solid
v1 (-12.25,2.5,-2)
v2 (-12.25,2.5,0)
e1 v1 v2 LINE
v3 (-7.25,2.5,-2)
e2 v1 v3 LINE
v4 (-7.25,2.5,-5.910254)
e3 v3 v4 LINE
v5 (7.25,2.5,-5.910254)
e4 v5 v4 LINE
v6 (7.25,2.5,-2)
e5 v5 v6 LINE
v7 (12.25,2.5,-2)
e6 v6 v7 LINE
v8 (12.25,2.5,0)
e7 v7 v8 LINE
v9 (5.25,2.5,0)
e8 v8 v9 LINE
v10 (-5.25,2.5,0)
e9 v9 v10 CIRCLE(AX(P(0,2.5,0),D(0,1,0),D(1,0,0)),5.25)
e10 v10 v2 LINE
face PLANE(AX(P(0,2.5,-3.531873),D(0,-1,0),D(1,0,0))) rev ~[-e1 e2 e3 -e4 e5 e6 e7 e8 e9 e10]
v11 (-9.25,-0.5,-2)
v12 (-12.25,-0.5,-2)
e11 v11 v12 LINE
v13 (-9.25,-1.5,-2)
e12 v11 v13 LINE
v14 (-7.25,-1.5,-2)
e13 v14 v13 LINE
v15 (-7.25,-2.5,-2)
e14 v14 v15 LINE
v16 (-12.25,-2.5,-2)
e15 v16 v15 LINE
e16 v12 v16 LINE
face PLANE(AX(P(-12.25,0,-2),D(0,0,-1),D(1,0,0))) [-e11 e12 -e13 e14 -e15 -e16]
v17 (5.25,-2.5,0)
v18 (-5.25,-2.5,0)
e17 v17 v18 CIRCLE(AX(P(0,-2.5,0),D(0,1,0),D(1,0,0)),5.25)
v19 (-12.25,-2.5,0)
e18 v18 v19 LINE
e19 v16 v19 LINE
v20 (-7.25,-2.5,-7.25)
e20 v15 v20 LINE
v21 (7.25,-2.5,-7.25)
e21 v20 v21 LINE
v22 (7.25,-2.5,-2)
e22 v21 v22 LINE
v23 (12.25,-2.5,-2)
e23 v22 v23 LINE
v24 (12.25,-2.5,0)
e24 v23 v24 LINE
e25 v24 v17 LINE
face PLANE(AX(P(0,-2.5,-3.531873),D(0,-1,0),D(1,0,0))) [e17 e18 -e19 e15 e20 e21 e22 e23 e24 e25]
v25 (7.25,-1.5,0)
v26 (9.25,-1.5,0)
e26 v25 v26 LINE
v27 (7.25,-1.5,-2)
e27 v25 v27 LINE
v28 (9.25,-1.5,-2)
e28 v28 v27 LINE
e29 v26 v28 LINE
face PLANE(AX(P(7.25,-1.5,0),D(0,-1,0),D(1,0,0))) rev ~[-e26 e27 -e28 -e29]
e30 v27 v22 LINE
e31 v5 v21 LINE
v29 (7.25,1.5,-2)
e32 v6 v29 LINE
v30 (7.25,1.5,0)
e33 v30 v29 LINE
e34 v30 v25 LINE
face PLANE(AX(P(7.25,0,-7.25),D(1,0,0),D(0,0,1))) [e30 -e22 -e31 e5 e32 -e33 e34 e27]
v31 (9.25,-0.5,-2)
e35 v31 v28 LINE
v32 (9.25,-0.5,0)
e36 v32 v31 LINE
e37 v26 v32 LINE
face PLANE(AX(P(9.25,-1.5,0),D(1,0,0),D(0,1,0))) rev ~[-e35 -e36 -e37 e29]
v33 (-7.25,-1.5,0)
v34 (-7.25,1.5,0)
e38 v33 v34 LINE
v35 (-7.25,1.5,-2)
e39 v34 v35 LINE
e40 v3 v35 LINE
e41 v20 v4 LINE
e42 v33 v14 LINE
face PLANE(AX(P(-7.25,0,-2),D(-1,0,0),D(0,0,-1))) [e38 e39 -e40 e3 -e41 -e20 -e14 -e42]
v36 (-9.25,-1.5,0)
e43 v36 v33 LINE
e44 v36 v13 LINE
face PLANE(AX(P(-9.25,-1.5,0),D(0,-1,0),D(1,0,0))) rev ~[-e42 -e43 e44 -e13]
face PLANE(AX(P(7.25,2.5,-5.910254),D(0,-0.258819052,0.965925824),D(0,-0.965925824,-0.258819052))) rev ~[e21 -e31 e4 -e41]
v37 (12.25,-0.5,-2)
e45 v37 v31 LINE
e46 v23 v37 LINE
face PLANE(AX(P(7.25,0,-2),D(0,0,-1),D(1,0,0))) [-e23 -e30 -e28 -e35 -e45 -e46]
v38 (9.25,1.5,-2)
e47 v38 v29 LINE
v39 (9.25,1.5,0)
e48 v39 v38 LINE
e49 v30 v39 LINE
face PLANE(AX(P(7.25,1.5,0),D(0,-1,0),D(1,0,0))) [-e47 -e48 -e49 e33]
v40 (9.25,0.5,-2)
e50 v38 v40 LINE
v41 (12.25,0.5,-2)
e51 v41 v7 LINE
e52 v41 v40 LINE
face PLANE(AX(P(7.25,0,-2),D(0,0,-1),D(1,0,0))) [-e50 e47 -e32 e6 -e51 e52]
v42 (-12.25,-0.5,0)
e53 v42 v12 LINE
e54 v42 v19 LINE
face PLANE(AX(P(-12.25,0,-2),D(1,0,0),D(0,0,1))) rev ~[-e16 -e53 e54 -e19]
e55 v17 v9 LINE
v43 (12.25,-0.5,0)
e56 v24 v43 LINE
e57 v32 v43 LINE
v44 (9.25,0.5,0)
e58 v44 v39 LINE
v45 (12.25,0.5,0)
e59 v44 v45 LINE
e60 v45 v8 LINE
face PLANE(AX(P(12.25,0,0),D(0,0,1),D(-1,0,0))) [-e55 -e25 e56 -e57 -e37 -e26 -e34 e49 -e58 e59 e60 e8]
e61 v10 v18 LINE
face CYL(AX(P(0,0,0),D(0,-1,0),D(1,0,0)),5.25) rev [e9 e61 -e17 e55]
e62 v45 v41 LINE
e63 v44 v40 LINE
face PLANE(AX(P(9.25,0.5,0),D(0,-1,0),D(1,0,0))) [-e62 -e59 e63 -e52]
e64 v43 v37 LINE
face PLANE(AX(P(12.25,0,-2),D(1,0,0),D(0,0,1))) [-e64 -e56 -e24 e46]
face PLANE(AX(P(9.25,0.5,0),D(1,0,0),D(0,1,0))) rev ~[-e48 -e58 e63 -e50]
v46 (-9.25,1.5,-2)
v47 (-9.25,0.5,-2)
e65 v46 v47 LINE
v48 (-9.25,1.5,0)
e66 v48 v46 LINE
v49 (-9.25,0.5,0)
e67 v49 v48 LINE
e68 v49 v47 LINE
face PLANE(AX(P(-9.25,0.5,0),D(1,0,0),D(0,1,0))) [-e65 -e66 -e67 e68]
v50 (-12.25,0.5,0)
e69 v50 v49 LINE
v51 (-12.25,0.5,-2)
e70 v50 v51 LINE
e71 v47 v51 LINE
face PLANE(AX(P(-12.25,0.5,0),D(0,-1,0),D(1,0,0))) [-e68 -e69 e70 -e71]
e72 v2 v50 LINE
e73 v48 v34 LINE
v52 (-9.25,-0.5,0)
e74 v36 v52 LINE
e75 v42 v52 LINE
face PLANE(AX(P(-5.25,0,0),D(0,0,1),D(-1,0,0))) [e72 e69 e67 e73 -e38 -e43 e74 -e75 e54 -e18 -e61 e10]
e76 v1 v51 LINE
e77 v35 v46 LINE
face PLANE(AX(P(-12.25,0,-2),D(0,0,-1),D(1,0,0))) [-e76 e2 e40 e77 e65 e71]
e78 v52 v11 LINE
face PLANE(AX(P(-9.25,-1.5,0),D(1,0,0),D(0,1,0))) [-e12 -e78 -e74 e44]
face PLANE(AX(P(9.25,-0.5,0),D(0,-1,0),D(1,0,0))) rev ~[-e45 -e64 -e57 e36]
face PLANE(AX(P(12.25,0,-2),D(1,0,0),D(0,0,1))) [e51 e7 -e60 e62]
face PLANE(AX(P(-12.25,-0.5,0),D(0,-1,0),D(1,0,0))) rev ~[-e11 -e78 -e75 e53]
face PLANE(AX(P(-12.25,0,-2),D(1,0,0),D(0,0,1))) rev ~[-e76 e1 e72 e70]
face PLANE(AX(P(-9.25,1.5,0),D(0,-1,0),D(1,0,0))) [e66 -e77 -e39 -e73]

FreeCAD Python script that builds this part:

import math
import FreeCAD as App
import Part
import Sketcher
Q = App.Units.Quantity


def add_polygon(sketch, points):
    """Adds a closed chain of lines whose ends are joined by coincident constraints."""
    first, n = sketch.GeometryCount, len(points)
    for a, b in zip(points, points[1:] + points[:1]):
        sketch.addGeometry(Part.LineSegment(App.Vector(*a, 0), App.Vector(*b, 0)), False)
    for i in range(n):
        sketch.addConstraint(Sketcher.Constraint("Coincident", first + i, 2, first + (i + 1) % n, 1))

doc = App.newDocument("Part")
body = doc.addObject("PartDesign::Body", "Body")

sketch1 = body.newObject("Sketcher::SketchObject", "Sketch")
sketch1.AttachmentSupport = (doc.getObject("XZ_Plane"), [""])
sketch1.MapMode = "FlatFace"
sketch1.addGeometry(Part.ArcOfCircle(Part.Circle(App.Vector(0, 0, 0), App.Vector(0, 0, 1), 5.2), math.radians(180), math.radians(360)), False)
sketch1.addGeometry(Part.LineSegment(App.Vector(-5.2, 0, 0), App.Vector(-12.2, 0, 0)), False)
sketch1.addGeometry(Part.LineSegment(App.Vector(-12.2, 0, 0), App.Vector(-12.2, -2, 0)), False)
sketch1.addGeometry(Part.LineSegment(App.Vector(-12.2, -2, 0), App.Vector(-7.2, -2, 0)), False)
sketch1.addGeometry(Part.LineSegment(App.Vector(-7.2, -2, 0), App.Vector(-7.2, -7.2, 0)), False)
sketch1.addGeometry(Part.LineSegment(App.Vector(-7.2, -7.2, 0), App.Vector(7.2, -7.2, 0)), False)
sketch1.addGeometry(Part.LineSegment(App.Vector(7.2, -7.2, 0), App.Vector(7.2, -2, 0)), False)
sketch1.addGeometry(Part.LineSegment(App.Vector(7.2, -2, 0), App.Vector(12.2, -2, 0)), False)
sketch1.addGeometry(Part.LineSegment(App.Vector(12.2, -2, 0), App.Vector(12.2, 0, 0)), False)
sketch1.addGeometry(Part.LineSegment(App.Vector(12.2, 0, 0), App.Vector(5.2, 0, 0)), False)
sketch1.addConstraint(Sketcher.Constraint("Coincident", 0, 1, 1, 1))
sketch1.addConstraint(Sketcher.Constraint("Coincident", 1, 2, 2, 1))
sketch1.addConstraint(Sketcher.Constraint("Coincident", 2, 2, 3, 1))
sketch1.addConstraint(Sketcher.Constraint("Coincident", 3, 2, 4, 1))
sketch1.addConstraint(Sketcher.Constraint("Coincident", 4, 2, 5, 1))
sketch1.addConstraint(Sketcher.Constraint("Coincident", 5, 2, 6, 1))
sketch1.addConstraint(Sketcher.Constraint("Coincident", 6, 2, 7, 1))
sketch1.addConstraint(Sketcher.Constraint("Coincident", 7, 2, 8, 1))
sketch1.addConstraint(Sketcher.Constraint("Coincident", 8, 2, 9, 1))
sketch1.addConstraint(Sketcher.Constraint("Coincident", 9, 2, 0, 2))
sketch1.addConstraint(Sketcher.Constraint("Horizontal", 1))
sketch1.addConstraint(Sketcher.Constraint("Vertical", 2))
sketch1.addConstraint(Sketcher.Constraint("Horizontal", 3))
sketch1.addConstraint(Sketcher.Constraint("Vertical", 4))
sketch1.addConstraint(Sketcher.Constraint("Horizontal", 5))
sketch1.addConstraint(Sketcher.Constraint("Vertical", 6))
sketch1.addConstraint(Sketcher.Constraint("Horizontal", 7))
sketch1.addConstraint(Sketcher.Constraint("Vertical", 8))
sketch1.addConstraint(Sketcher.Constraint("Horizontal", 9))
sketch1.addConstraint(Sketcher.Constraint("Coincident", 0, 3, -1, 1))
sketch1.addConstraint(Sketcher.Constraint("Symmetric", 1, 2, 8, 2, -1, 1))
sketch1.addConstraint(Sketcher.Constraint("Symmetric", 3, 2, 6, 2, -2))
sketch1.addConstraint(Sketcher.Constraint("PointOnObject", 0, 1, -1))
sketch1.addConstraint(Sketcher.Constraint("DistanceX", 1, 2, 1, 1, 7.0))
sketch1.addConstraint(Sketcher.Constraint("DistanceX", 3, 1, 3, 2, 5.0))
sketch1.addConstraint(Sketcher.Constraint("DistanceY", 2, 2, 2, 1, 2.0))
sketch1.addConstraint(Sketcher.Constraint("Radius", 0, 5.25))
sketch1.addConstraint(Sketcher.Constraint("DistanceY", 4, 2, 4, 1, 5.25))
pad1 = body.newObject("PartDesign::Pad", "Pad")
pad1.Profile = sketch1
pad1.Length = 5
pad1.Midplane = True

sketch2 = body.newObject("Sketcher::SketchObject", "Sketch001")
sketch2.AttachmentSupport = (doc.getObject("XY_Plane"), [""])
sketch2.MapMode = "FlatFace"
add_polygon(sketch2, [(-12.2, 0.5), (-12.2, -0.5), (-9.2, -0.5), (-9.2, -1.5), (-7.2, -1.5), (-7.2, 1.5), (-9.2, 1.5), (-9.2, 0.5)])
add_polygon(sketch2, [(12.2, -0.5), (12.2, 0.5), (9.2, 0.5), (9.2, 1.5), (7.2, 1.5), (7.2, -1.5), (9.2, -1.5), (9.2, -0.5)])
sketch2.addConstraint(Sketcher.Constraint("Vertical", 0))
sketch2.addConstraint(Sketcher.Constraint("Horizontal", 1))
sketch2.addConstraint(Sketcher.Constraint("Vertical", 2))
sketch2.addConstraint(Sketcher.Constraint("Horizontal", 3))
sketch2.addConstraint(Sketcher.Constraint("Vertical", 4))
sketch2.addConstraint(Sketcher.Constraint("Horizontal", 5))
sketch2.addConstraint(Sketcher.Constraint("Vertical", 6))
sketch2.addConstraint(Sketcher.Constraint("Horizontal", 7))
sketch2.addConstraint(Sketcher.Constraint("Vertical", 8))
sketch2.addConstraint(Sketcher.Constraint("Horizontal", 9))
sketch2.addConstraint(Sketcher.Constraint("Vertical", 10))
sketch2.addConstraint(Sketcher.Constraint("Horizontal", 11))
sketch2.addConstraint(Sketcher.Constraint("Vertical", 12))
sketch2.addConstraint(Sketcher.Constraint("Horizontal", 13))
sketch2.addConstraint(Sketcher.Constraint("Vertical", 14))
sketch2.addConstraint(Sketcher.Constraint("Horizontal", 15))
sketch2.addConstraint(Sketcher.Constraint("Symmetric", 0, 2, 8, 2, -1, 1))
sketch2.addConstraint(Sketcher.Constraint("Symmetric", 2, 2, 10, 2, -1, 1))
sketch2.addConstraint(Sketcher.Constraint("Symmetric", 4, 2, 12, 2, -1, 1))
sketch2.addConstraint(Sketcher.Constraint("Symmetric", 6, 2, 14, 2, -1, 1))
sketch2.addConstraint(Sketcher.Constraint("Symmetric", 6, 2, 9, 2, -2))
sketch2.addConstraint(Sketcher.Constraint("Horizontal", 5, 2, 10, 2))
sketch2.addConstraint(Sketcher.Constraint("Equal", 0, 2))
sketch2.addConstraint(Sketcher.Constraint("Equal", 15, 4))
sketch2.addConstraint(Sketcher.Constraint("DistanceX", 1, 1, 1, 2, 3.0))
sketch2.addConstraint(Sketcher.Constraint("DistanceX", 3, 1, 3, 2, 2.0))
sketch2.addConstraint(Sketcher.Constraint("DistanceX", 4, 2, 8, 2, 19.5))
pocket1 = body.newObject("PartDesign::Pocket", "Pocket")
pocket1.Profile = sketch2
pocket1.Length = 25

sketch3 = body.newObject("Sketcher::SketchObject", "Sketch002")
sketch3.AttachmentSupport = (doc.getObject("YZ_Plane"), [""])
sketch3.MapMode = "FlatFace"
sketch3.AttachmentOffset = App.Placement(App.Vector(0, 0, 7.25), App.Rotation())
add_polygon(sketch3, [(2.5, -7.2), (2.5, -5.9), (-2.5, -7.2)])
sketch3.addConstraint(Sketcher.Constraint("Vertical", 0))
sketch3.addConstraint(Sketcher.Constraint("Horizontal", 2))
sketch3.addConstraint(Sketcher.Constraint("DistanceX", 2, 1, 2, 2, 5.0))
sketch3.addConstraint(Sketcher.Constraint("Angle", 1, Q("-165 deg")))
sketch3.addConstraint(Sketcher.Constraint("DistanceX", -1, 1, 0, 2, 2.5))
sketch3.addConstraint(Sketcher.Constraint("DistanceY", 1, 2, -1, 1, 7.25))
pocket2 = body.newObject("PartDesign::Pocket", "Pocket001")
pocket2.Profile = sketch3
pocket2.Length = 25

doc.recompute()
